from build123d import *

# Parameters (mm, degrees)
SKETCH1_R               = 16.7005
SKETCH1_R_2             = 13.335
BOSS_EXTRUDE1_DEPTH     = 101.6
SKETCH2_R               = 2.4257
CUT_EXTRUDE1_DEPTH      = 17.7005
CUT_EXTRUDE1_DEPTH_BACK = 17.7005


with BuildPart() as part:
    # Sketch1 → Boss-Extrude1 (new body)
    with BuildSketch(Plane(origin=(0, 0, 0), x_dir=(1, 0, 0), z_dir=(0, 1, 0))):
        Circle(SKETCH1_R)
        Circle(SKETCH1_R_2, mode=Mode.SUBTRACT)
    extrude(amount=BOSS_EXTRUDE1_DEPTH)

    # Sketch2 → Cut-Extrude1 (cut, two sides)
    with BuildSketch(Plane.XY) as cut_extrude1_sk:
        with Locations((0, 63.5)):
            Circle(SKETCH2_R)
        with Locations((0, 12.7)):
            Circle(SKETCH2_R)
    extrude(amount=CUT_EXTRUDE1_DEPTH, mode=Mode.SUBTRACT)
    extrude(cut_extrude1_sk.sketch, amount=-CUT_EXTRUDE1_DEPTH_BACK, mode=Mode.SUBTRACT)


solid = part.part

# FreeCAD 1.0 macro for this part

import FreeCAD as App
import Part
import Sketcher

V = App.Vector
Q = App.Units.Quantity

doc = App.newDocument("Part")
body = doc.addObject("PartDesign::Body", "Body")

sketch1 = body.newObject("Sketcher::SketchObject", "Sketch")
sketch1.AttachmentSupport = (doc.getObject("XZ_Plane"), [""])
sketch1.MapMode = "FlatFace"
sketch1.addGeometry(Part.Circle(V(0, 0, 0), V(0, 0, 1), 17), False)
sketch1.addGeometry(Part.Circle(V(0, 0, 0), V(0, 0, 1), 13), False)
sketch1.addConstraint(Sketcher.Constraint("Coincident", 0, 3, -1, 1))
sketch1.addConstraint(Sketcher.Constraint("Coincident", 1, 3, -1, 1))
sketch1.addConstraint(Sketcher.Constraint("Diameter", 1, Q("1.05 in")))
sketch1.addConstraint(Sketcher.Constraint("Diameter", 0, Q("1.315 in")))
pad1 = body.newObject("PartDesign::Pad", "Pad")
pad1.Profile = sketch1
pad1.Length = Q("4 in")
pad1.Reversed = True

sketch2 = body.newObject("Sketcher::SketchObject", "Sketch001")
sketch2.AttachmentSupport = (doc.getObject("XY_Plane"), [""])
sketch2.MapMode = "FlatFace"
sketch2.addGeometry(Part.Circle(V(0, 63.5, 0), V(0, 0, 1), 2.4), False)
sketch2.addGeometry(Part.Circle(V(0, 12.7, 0), V(0, 0, 1), 2.4), False)
sketch2.addConstraint(Sketcher.Constraint("Equal", 0, 1))
sketch2.addConstraint(Sketcher.Constraint("PointOnObject", 0, 3, -2))
sketch2.addConstraint(Sketcher.Constraint("PointOnObject", 1, 3, -2))
sketch2.addConstraint(Sketcher.Constraint("Diameter", 0, Q("0.191 in")))
sketch2.addConstraint(Sketcher.Constraint("DistanceY", 1, 3, 0, 3, Q("2 in")))
sketch2.addConstraint(Sketcher.Constraint("DistanceY", -1, 1, 0, 3, Q("2.5 in")))
pocket1 = body.newObject("PartDesign::Pocket", "Pocket")
pocket1.Profile = sketch2
pocket1.Type = "ThroughAll"
pocket1.Midplane = True

doc.recompute()
